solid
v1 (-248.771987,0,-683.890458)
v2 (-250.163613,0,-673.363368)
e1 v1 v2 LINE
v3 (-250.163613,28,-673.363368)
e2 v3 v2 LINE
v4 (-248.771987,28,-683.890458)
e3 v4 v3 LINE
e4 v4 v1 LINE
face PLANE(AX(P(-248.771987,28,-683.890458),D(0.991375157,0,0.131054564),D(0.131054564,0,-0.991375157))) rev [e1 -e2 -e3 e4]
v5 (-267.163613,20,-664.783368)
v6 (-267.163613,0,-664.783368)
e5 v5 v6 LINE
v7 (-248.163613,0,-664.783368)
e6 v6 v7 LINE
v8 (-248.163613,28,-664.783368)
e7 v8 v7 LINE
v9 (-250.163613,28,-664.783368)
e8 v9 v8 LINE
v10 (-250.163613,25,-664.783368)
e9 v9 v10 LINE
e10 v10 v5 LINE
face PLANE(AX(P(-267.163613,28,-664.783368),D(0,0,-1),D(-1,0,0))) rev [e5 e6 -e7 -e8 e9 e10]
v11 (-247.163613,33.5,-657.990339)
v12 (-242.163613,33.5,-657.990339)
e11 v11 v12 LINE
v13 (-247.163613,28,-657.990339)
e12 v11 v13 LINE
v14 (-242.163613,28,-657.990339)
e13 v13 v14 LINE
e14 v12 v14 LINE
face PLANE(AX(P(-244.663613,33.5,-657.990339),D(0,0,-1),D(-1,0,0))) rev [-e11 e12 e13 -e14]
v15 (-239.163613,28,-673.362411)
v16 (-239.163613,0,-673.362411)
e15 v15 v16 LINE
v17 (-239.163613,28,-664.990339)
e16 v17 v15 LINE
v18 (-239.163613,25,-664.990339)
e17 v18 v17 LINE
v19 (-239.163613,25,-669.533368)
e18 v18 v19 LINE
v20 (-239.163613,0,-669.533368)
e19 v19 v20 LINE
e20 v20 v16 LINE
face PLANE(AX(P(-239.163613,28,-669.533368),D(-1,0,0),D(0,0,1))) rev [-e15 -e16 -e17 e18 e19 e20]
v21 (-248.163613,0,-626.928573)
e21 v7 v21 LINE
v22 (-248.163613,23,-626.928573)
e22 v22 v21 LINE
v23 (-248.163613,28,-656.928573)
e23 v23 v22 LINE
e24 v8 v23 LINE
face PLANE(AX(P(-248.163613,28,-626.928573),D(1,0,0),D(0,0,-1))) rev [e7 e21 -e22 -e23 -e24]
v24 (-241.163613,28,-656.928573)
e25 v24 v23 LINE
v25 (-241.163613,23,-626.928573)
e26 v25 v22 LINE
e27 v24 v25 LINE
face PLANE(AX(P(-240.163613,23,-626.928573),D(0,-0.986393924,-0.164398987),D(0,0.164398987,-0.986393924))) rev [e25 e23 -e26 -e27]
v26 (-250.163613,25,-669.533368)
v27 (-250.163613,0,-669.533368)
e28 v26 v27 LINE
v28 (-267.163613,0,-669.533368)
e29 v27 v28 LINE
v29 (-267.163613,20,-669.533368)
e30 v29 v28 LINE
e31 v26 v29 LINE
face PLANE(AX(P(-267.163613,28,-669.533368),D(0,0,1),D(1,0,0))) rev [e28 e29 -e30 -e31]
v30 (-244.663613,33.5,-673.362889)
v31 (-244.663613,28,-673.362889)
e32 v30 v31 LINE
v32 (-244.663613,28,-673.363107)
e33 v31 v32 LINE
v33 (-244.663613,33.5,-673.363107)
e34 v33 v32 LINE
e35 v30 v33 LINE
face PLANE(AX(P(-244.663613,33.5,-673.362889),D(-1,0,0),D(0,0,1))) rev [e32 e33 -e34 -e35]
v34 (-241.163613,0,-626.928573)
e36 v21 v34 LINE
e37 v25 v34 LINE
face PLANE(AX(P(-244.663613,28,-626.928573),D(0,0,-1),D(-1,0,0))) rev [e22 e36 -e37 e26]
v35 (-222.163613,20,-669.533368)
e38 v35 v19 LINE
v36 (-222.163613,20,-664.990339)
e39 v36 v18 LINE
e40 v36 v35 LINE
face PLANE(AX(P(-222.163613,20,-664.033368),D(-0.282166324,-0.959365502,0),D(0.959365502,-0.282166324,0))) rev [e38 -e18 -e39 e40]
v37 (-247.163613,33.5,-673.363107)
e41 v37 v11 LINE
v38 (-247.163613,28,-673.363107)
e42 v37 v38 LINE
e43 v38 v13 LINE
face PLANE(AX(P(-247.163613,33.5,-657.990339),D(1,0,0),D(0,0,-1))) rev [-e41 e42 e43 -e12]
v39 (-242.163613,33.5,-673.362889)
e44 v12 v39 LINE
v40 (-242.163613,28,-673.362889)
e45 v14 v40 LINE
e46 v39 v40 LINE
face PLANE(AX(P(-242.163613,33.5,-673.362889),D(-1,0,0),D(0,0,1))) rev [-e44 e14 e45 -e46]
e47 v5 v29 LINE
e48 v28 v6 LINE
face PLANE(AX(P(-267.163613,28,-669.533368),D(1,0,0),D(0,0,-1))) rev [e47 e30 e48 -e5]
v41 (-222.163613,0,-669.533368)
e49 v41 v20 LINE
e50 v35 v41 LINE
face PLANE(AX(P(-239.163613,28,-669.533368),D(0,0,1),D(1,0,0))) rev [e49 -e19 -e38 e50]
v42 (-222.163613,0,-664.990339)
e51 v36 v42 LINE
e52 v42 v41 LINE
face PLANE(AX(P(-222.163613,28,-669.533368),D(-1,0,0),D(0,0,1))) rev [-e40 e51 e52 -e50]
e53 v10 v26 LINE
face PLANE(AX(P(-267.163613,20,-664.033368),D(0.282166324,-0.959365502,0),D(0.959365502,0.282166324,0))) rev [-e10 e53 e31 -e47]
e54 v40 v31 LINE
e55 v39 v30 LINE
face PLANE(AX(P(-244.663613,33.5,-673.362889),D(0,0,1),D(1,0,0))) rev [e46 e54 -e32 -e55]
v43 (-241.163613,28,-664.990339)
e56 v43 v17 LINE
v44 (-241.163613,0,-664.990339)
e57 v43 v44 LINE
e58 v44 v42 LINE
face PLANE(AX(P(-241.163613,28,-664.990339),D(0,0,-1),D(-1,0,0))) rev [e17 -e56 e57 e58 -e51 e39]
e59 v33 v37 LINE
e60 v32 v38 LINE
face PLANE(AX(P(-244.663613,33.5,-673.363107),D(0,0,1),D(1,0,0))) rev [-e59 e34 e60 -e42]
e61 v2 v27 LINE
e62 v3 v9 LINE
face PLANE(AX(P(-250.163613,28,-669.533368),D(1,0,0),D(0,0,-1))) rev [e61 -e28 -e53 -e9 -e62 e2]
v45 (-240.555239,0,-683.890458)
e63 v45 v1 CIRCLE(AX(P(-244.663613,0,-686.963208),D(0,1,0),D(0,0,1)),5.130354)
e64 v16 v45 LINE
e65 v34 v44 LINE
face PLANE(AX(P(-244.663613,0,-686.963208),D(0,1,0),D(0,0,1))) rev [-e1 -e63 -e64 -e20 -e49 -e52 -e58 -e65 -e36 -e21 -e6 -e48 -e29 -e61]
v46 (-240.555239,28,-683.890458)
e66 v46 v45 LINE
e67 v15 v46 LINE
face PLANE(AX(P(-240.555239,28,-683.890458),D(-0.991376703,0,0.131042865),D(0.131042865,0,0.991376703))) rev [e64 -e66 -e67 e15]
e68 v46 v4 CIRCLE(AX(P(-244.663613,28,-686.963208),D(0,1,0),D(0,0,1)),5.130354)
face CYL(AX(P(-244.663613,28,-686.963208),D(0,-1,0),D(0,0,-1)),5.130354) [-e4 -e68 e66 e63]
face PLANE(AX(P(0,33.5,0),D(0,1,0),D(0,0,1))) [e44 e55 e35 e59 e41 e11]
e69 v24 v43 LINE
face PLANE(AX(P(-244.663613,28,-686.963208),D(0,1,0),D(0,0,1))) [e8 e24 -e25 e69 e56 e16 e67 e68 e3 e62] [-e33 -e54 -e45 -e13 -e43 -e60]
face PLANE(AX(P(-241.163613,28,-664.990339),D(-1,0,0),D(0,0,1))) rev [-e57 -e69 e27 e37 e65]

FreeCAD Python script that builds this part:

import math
import FreeCAD as App
import Part
import Sketcher

V = App.Vector


def add_polygon(sketch, points):
    """Adds a closed chain of lines whose ends are joined by coincident constraints."""
    first, n = sketch.GeometryCount, len(points)
    for a, b in zip(points, points[1:] + points[:1]):
        sketch.addGeometry(Part.LineSegment(App.Vector(*a, 0), App.Vector(*b, 0)), False)
    for i in range(n):
        sketch.addConstraint(Sketcher.Constraint("Coincident", first + i, 2, first + (i + 1) % n, 1))

doc = App.newDocument("Part")
params = doc.addObject("Spreadsheet::Sheet", "Params")
for row, (alias, value) in enumerate([
    ("sketch1_width", "17 mm"),
    ("sketch1_width2", "19 mm"),
    ("sketch1_width3", "7 mm"),
    ("sketch1_height", "3.83 mm"),
    ("sketch1_height2", "4.75 mm"),
    ("pad1_length", "28 mm"),
    ("sketch2_width", "5 mm"),
    ("sketch2_width2", "2.5 mm"),
    ("pad2_length", "5.5 mm"),
    ("sketch3_width", "17 mm"),
    ("sketch3_height", "8 mm"),
    ("sketch3_height2", "3 mm"),
    ("pocket1_length", "5.5 mm"),
    ("sketch4_width", "5 mm"),
    ("sketch4_height", "30 mm"),
    ("pocket2_length", "8 mm"),
], start=1):
    params.set(f"A{row}", alias)
    params.set(f"B{row}", "=" + value)
    params.setAlias(f"B{row}", alias)

body = doc.addObject("PartDesign::Body", "Body")

# Sketch on XZ plane
sketch1 = body.newObject("Sketcher::SketchObject", "Sketch")
sketch1.AttachmentSupport = (doc.getObject("XZ_Plane"), [""])
sketch1.MapMode = "FlatFace"
sketch1.addGeometry(Part.LineSegment(V(-248.8, -683.9, 0), V(-250.2, -673.4, 0)), False)
sketch1.addGeometry(Part.LineSegment(V(-250.2, -673.4, 0), V(-250.2, -669.5, 0)), False)
sketch1.addGeometry(Part.LineSegment(V(-250.2, -669.5, 0), V(-267.2, -669.5, 0)), False)
sketch1.addGeometry(Part.LineSegment(V(-267.2, -669.5, 0), V(-267.2, -664.8, 0)), False)
sketch1.addGeometry(Part.LineSegment(V(-267.2, -664.8, 0), V(-248.2, -664.8, 0)), False)
sketch1.addGeometry(Part.LineSegment(V(-248.2, -664.8, 0), V(-248.2, -626.9, 0)), False)
sketch1.addGeometry(Part.LineSegment(V(-248.2, -626.9, 0), V(-241.2, -626.9, 0)), False)
sketch1.addGeometry(Part.LineSegment(V(-241.2, -626.9, 0), V(-241.2, -665, 0)), False)
sketch1.addGeometry(Part.LineSegment(V(-241.2, -665, 0), V(-222.2, -665, 0)), False)
sketch1.addGeometry(Part.LineSegment(V(-222.2, -665, 0), V(-222.2, -669.5, 0)), False)
sketch1.addGeometry(Part.LineSegment(V(-222.2, -669.5, 0), V(-239.2, -669.5, 0)), False)
sketch1.addGeometry(Part.LineSegment(V(-239.2, -669.5, 0), V(-239.2, -673.4, 0)), False)
sketch1.addGeometry(Part.LineSegment(V(-239.2, -673.4, 0), V(-240.6, -683.9, 0)), False)
sketch1.addGeometry(Part.ArcOfCircle(Part.Circle(V(-244.7, -687, 0), V(0, 0, 1), 5.1), math.radians(143), math.radians(397)), False)
sketch1.addConstraint(Sketcher.Constraint("Coincident", 0, 2, 1, 1))
sketch1.addConstraint(Sketcher.Constraint("Coincident", 1, 2, 2, 1))
sketch1.addConstraint(Sketcher.Constraint("Coincident", 2, 2, 3, 1))
sketch1.addConstraint(Sketcher.Constraint("Coincident", 3, 2, 4, 1))
sketch1.addConstraint(Sketcher.Constraint("Coincident", 4, 2, 5, 1))
sketch1.addConstraint(Sketcher.Constraint("Coincident", 5, 2, 6, 1))
sketch1.addConstraint(Sketcher.Constraint("Coincident", 6, 2, 7, 1))
sketch1.addConstraint(Sketcher.Constraint("Coincident", 7, 2, 8, 1))
sketch1.addConstraint(Sketcher.Constraint("Coincident", 8, 2, 9, 1))
sketch1.addConstraint(Sketcher.Constraint("Coincident", 9, 2, 10, 1))
sketch1.addConstraint(Sketcher.Constraint("Coincident", 10, 2, 11, 1))
sketch1.addConstraint(Sketcher.Constraint("Coincident", 11, 2, 12, 1))
sketch1.addConstraint(Sketcher.Constraint("Coincident", 12, 2, 13, 2))
sketch1.addConstraint(Sketcher.Constraint("Coincident", 13, 1, 0, 1))
sketch1.addConstraint(Sketcher.Constraint("Vertical", 1))
sketch1.addConstraint(Sketcher.Constraint("Horizontal", 2))
sketch1.addConstraint(Sketcher.Constraint("Vertical", 3))
sketch1.addConstraint(Sketcher.Constraint("Horizontal", 4))
sketch1.addConstraint(Sketcher.Constraint("Vertical", 5))
sketch1.addConstraint(Sketcher.Constraint("Horizontal", 6))
sketch1.addConstraint(Sketcher.Constraint("Vertical", 7))
sketch1.addConstraint(Sketcher.Constraint("Horizontal", 8))
sketch1.addConstraint(Sketcher.Constraint("Vertical", 9))
sketch1.addConstraint(Sketcher.Constraint("Horizontal", 10))
sketch1.addConstraint(Sketcher.Constraint("Vertical", 11))
sketch1.addConstraint(Sketcher.Constraint("Horizontal", 2, 2, 9, 2))
sketch1.addConstraint(Sketcher.Constraint("Horizontal", 12, 2, 13, 1))
sketch1.addConstraint(Sketcher.Constraint("Equal", 4, 8))
sketch1.addConstraint(Sketcher.Constraint("Equal", 2, 10))
sketch1.addConstraint(Sketcher.Constraint("DistanceX", 2, 2, 2, 1, 17.0))
sketch1.addConstraint(Sketcher.Constraint("DistanceX", 4, 1, 4, 2, 19.0))
sketch1.addConstraint(Sketcher.Constraint("DistanceX", 6, 1, 6, 2, 7.0))
sketch1.addConstraint(Sketcher.Constraint("DistanceY", 1, 1, 1, 2, 3.83))
sketch1.addConstraint(Sketcher.Constraint("DistanceY", 3, 1, 3, 2, 4.75))
sketch1.addConstraint(Sketcher.Constraint("DistanceX", 0, 2, 13, 3, 5.5))
sketch1.addConstraint(Sketcher.Constraint("Radius", 13, 5.130354))
sketch1.addConstraint(Sketcher.Constraint("DistanceY", 9, 2, 9, 1, 4.543029))
sketch1.addConstraint(Sketcher.Constraint("DistanceY", 5, 1, 5, 2, 37.854795))
sketch1.addConstraint(Sketcher.Constraint("DistanceY", 11, 2, 11, 1, 3.829044))
sketch1.addConstraint(Sketcher.Constraint("DistanceY", 13, 3, -1, 1, 686.963208))
sketch1.addConstraint(Sketcher.Constraint("DistanceY", 7, 2, -1, 1, 664.990339))
sketch1.addConstraint(Sketcher.Constraint("DistanceX", 12, 2, -1, 1, 240.555239))
sketch1.addConstraint(Sketcher.Constraint("DistanceY", 12, 2, -1, 1, 683.890458))
sketch1.setExpression("Constraints[29]", "Params.sketch1_width")
sketch1.setExpression("Constraints[30]", "Params.sketch1_width2")
sketch1.setExpression("Constraints[31]", "Params.sketch1_width3")
sketch1.setExpression("Constraints[32]", "Params.sketch1_height")
sketch1.setExpression("Constraints[33]", "Params.sketch1_height2")
pad1 = body.newObject("PartDesign::Pad", "Pad")
pad1.Profile = sketch1
pad1.setExpression("Length", "Params.pad1_length")
pad1.Reversed = True

# Sketch on XZ plane
sketch2 = body.newObject("Sketcher::SketchObject", "Sketch001")
sketch2.AttachmentSupport = (doc.getObject("XZ_Plane"), [""])
sketch2.MapMode = "FlatFace"
sketch2.AttachmentOffset = App.Placement(V(0, 0, -28), App.Rotation())
add_polygon(sketch2, [(-242.2, -673.4), (-244.7, -673.4), (-247.2, -673.4), (-247.2, -658), (-242.2, -658)])  # lines 0-4
sketch2.addConstraint(Sketcher.Constraint("Horizontal", 0))
sketch2.addConstraint(Sketcher.Constraint("Vertical", 2))
sketch2.addConstraint(Sketcher.Constraint("Horizontal", 3))
sketch2.addConstraint(Sketcher.Constraint("Vertical", 4))
sketch2.addConstraint(Sketcher.Constraint("DistanceX", 3, 1, 3, 2, 5.0))
sketch2.addConstraint(Sketcher.Constraint("DistanceX", 0, 2, 0, 1, 2.5))
sketch2.addConstraint(Sketcher.Constraint("DistanceY", 4, 2, 4, 1, 15.372551))
sketch2.addConstraint(Sketcher.Constraint("DistanceY", 2, 1, 2, 2, 15.372768))
sketch2.addConstraint(Sketcher.Constraint("DistanceY", 0, 2, -1, 1, 673.362889))
sketch2.addConstraint(Sketcher.Constraint("DistanceX", 0, 2, -1, 1, 244.663613))
sketch2.setExpression("Constraints[9]", "Params.sketch2_width")
sketch2.setExpression("Constraints[10]", "Params.sketch2_width2")
pad2 = body.newObject("PartDesign::Pad", "Pad001")
pad2.Profile = sketch2
pad2.setExpression("Length", "Params.pad2_length")
pad2.Reversed = True

# Sketch on XY plane
sketch3 = body.newObject("Sketcher::SketchObject", "Sketch002")
sketch3.AttachmentSupport = (doc.getObject("XY_Plane"), [""])
sketch3.MapMode = "FlatFace"
sketch3.AttachmentOffset = App.Placement(V(0, 0, -669.533368), App.Rotation())
add_polygon(sketch3, [(-250.2, 25), (-267.2, 20), (-267.2, 28), (-250.2, 28)])  # lines 0-3
add_polygon(sketch3, [(-222.2, 28), (-222.2, 20), (-239.2, 25), (-239.2, 28)])  # lines 4-7
sketch3.addConstraint(Sketcher.Constraint("Vertical", 1))
sketch3.addConstraint(Sketcher.Constraint("Horizontal", 2))
sketch3.addConstraint(Sketcher.Constraint("Vertical", 3))
sketch3.addConstraint(Sketcher.Constraint("Vertical", 4))
sketch3.addConstraint(Sketcher.Constraint("Vertical", 6))
sketch3.addConstraint(Sketcher.Constraint("Horizontal", 7))
sketch3.addConstraint(Sketcher.Constraint("Horizontal", 0, 2, 4, 2))
sketch3.addConstraint(Sketcher.Constraint("Horizontal", 3, 2, 5, 2))
sketch3.addConstraint(Sketcher.Constraint("Horizontal", 2, 2, 6, 2))
sketch3.addConstraint(Sketcher.Constraint("Equal", 2, 7))
sketch3.addConstraint(Sketcher.Constraint("DistanceX", 2, 1, 2, 2, 17.0))
sketch3.addConstraint(Sketcher.Constraint("DistanceY", 1, 1, 1, 2, 8.0))
sketch3.addConstraint(Sketcher.Constraint("DistanceY", 3, 2, 3, 1, 3.0))
sketch3.addConstraint(Sketcher.Constraint("DistanceY", -1, 1, 0, 2, 20.0))
sketch3.addConstraint(Sketcher.Constraint("DistanceX", 3, 2, 4, 2, 28.0))
sketch3.addConstraint(Sketcher.Constraint("DistanceX", 0, 2, -1, 1, 267.163613))
sketch3.setExpression("Constraints[18]", "Params.sketch3_width")
sketch3.setExpression("Constraints[19]", "Params.sketch3_height")
sketch3.setExpression("Constraints[20]", "Params.sketch3_height2")
pocket1 = body.newObject("PartDesign::Pocket", "Pocket")
pocket1.Profile = sketch3
pocket1.setExpression("Length", "Params.pocket1_length")
pocket1.Reversed = True

# Sketch on YZ plane
sketch4 = body.newObject("Sketcher::SketchObject", "Sketch003")
sketch4.AttachmentSupport = (doc.getObject("YZ_Plane"), [""])
sketch4.MapMode = "FlatFace"
sketch4.AttachmentOffset = App.Placement(V(0, 0, -248.163613), App.Rotation())
add_polygon(sketch4, [(23, -627), (28, -627), (28, -657)])  # lines 0-2
sketch4.addConstraint(Sketcher.Constraint("Horizontal", 0))
sketch4.addConstraint(Sketcher.Constraint("Vertical", 1))
sketch4.addConstraint(Sketcher.Constraint("DistanceX", 0, 1, 0, 2, 5.0))
sketch4.addConstraint(Sketcher.Constraint("DistanceY", 1, 2, 1, 1, 30.0))
sketch4.addConstraint(Sketcher.Constraint("DistanceX", -1, 1, 0, 2, 28.0))
sketch4.addConstraint(Sketcher.Constraint("DistanceY", 0, 2, -1, 1, 626.928573))
sketch4.setExpression("Constraints[5]", "Params.sketch4_width")
sketch4.setExpression("Constraints[6]", "Params.sketch4_height")
pocket2 = body.newObject("PartDesign::Pocket", "Pocket001")
pocket2.Profile = sketch4
pocket2.setExpression("Length", "Params.pocket2_length")
pocket2.Reversed = True

doc.recompute()
